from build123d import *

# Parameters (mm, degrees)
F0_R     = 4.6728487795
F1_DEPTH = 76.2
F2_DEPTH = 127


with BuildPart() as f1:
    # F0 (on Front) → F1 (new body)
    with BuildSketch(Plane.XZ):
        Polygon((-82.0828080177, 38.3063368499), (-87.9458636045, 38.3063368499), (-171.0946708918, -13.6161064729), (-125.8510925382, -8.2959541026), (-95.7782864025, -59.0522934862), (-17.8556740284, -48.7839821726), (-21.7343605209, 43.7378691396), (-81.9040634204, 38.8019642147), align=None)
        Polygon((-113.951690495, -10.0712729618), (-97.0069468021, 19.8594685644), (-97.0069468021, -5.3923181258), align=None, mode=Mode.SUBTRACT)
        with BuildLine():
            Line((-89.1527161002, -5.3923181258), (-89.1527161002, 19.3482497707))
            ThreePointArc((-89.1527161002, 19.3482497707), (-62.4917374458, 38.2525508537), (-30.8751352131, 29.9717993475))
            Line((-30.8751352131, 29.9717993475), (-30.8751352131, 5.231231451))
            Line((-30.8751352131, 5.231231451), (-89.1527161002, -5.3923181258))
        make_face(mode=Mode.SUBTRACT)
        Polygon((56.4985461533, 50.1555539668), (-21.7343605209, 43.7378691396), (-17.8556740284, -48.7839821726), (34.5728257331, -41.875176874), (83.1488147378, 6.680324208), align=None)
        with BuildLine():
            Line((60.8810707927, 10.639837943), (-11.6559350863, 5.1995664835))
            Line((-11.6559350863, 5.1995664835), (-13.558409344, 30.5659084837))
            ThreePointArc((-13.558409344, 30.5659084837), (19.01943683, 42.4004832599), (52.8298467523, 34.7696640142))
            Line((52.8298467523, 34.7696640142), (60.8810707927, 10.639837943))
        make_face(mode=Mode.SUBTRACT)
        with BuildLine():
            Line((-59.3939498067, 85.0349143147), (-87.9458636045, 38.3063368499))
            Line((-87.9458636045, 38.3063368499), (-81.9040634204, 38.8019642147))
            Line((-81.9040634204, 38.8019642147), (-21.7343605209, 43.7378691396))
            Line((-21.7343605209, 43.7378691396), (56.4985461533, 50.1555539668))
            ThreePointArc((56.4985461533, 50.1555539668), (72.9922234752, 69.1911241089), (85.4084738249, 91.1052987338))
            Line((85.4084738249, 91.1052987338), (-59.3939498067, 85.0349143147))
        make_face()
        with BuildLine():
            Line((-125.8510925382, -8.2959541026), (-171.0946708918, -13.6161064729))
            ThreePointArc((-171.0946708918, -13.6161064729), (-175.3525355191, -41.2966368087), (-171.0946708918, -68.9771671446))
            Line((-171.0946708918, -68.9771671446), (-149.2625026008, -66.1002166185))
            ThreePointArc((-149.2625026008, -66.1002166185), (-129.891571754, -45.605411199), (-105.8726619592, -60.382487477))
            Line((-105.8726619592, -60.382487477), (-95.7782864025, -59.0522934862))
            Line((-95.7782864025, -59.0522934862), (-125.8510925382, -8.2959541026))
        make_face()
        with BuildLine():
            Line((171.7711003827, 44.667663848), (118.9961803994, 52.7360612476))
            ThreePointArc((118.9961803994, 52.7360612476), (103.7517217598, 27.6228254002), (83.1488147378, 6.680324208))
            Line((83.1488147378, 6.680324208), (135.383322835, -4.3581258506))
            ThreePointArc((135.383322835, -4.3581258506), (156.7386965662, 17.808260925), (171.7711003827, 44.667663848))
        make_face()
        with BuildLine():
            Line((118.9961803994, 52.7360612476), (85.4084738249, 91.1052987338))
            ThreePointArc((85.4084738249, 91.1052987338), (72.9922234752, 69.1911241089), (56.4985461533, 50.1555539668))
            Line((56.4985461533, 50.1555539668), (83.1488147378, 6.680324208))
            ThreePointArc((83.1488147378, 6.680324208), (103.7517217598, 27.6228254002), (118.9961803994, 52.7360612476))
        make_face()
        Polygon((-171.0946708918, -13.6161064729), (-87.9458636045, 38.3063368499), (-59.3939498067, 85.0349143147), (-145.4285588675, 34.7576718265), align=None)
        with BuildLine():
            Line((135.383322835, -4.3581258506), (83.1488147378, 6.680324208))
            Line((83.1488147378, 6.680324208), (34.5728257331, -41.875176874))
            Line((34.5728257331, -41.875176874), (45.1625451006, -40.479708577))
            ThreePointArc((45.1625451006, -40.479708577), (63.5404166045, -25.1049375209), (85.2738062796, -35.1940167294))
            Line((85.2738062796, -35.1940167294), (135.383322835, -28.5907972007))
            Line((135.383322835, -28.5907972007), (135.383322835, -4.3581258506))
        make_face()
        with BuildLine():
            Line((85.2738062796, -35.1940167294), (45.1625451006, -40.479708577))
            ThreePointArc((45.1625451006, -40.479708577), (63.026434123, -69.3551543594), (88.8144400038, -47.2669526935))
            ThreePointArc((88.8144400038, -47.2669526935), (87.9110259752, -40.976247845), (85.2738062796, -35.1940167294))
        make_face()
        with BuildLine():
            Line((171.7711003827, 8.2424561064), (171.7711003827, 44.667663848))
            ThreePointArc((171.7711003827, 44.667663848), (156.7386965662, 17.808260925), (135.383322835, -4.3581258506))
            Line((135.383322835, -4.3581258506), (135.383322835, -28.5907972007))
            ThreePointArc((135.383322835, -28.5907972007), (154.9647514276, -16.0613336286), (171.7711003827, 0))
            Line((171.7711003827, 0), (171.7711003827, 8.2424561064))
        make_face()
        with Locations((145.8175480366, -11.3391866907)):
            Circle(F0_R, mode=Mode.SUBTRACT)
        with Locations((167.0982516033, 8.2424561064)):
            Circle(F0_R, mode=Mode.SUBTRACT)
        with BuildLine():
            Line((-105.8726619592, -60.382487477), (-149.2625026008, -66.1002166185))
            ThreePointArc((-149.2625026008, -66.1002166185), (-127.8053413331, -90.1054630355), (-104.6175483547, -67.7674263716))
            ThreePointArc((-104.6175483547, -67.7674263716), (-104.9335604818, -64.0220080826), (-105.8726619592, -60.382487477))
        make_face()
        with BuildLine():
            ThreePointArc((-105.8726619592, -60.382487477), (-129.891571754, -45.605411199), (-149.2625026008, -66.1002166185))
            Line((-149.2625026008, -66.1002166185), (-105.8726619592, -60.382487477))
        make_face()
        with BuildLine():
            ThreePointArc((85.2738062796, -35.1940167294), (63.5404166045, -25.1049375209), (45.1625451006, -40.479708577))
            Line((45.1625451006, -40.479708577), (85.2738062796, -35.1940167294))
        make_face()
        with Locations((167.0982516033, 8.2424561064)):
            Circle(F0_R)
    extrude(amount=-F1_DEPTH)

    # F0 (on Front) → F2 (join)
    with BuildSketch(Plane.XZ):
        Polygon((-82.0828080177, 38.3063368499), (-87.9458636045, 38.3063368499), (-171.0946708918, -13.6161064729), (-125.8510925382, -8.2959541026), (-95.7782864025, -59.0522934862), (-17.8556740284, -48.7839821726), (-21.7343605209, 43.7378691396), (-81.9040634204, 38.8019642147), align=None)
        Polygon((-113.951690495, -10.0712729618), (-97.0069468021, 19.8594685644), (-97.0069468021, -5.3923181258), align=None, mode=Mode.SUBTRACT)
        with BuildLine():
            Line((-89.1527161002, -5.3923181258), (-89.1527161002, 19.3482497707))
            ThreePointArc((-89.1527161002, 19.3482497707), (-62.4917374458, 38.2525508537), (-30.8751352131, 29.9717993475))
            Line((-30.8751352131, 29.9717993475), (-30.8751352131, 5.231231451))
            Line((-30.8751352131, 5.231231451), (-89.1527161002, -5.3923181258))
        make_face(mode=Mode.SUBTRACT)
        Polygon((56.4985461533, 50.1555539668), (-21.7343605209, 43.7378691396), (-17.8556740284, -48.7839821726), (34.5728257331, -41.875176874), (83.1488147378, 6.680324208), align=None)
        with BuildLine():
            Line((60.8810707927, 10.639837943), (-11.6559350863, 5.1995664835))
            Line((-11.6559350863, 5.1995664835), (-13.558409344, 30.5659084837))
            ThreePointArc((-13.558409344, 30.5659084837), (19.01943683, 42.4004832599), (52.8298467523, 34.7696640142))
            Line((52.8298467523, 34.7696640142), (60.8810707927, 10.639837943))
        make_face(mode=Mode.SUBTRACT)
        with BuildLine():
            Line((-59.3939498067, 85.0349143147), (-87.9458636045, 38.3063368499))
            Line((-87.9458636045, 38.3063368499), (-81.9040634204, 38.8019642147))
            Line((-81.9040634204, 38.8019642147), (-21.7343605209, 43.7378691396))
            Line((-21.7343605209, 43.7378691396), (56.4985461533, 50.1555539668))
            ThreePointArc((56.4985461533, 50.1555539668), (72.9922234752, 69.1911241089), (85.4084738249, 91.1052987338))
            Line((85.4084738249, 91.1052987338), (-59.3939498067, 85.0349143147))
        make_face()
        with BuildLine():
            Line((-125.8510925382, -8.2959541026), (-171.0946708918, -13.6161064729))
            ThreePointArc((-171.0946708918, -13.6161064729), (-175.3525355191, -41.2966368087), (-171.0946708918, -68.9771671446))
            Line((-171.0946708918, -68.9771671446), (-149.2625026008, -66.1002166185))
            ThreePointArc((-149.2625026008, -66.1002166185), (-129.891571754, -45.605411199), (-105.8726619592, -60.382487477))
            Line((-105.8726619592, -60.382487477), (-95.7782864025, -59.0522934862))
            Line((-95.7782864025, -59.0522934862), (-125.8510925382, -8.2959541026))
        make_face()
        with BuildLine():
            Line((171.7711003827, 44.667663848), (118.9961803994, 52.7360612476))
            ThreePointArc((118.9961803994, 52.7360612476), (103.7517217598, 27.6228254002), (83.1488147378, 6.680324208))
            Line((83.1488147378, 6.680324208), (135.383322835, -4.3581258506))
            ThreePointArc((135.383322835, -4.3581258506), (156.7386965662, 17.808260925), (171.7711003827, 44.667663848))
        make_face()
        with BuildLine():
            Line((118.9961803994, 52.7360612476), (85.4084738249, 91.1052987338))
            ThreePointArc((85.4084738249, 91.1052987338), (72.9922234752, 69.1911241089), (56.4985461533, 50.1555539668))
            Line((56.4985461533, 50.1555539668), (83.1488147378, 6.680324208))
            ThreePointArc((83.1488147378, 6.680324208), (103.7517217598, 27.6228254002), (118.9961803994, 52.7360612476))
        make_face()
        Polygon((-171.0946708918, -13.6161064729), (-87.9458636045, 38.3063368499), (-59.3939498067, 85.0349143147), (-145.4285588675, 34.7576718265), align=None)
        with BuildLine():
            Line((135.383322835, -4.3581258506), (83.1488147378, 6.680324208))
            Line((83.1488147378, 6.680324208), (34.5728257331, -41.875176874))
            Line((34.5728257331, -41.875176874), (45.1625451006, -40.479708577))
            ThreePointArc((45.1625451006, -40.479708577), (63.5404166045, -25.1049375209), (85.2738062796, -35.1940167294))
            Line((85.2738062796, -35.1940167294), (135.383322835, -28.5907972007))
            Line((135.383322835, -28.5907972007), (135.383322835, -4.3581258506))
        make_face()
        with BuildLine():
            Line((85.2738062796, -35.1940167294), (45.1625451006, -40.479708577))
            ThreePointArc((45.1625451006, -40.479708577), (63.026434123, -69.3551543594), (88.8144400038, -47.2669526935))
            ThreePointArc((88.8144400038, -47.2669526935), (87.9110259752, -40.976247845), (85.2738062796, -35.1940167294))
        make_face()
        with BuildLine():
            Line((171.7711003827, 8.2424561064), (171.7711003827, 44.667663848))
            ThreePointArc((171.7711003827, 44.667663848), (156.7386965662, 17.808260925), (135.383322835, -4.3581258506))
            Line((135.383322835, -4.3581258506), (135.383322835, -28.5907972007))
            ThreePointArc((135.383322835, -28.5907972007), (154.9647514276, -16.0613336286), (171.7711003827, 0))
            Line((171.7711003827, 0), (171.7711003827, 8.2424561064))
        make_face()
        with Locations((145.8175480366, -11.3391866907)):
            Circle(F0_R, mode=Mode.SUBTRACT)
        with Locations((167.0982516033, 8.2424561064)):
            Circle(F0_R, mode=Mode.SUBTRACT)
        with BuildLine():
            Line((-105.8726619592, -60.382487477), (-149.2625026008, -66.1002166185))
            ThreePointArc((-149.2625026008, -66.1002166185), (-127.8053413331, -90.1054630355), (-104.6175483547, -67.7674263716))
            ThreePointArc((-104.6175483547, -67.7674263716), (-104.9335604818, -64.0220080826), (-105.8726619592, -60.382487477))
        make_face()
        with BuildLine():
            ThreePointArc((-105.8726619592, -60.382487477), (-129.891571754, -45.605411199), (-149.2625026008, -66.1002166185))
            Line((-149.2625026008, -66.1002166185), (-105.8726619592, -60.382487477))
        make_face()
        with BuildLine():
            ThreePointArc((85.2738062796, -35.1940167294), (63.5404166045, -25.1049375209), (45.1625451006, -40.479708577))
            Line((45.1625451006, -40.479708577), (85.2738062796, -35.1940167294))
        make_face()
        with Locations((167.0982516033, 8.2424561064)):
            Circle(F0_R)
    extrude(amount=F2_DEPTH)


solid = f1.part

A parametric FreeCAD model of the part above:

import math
import FreeCAD as App
import Part
import Sketcher
from FreeCAD import Vector
Q = App.Units.Quantity

doc = App.newDocument("Part")
body = doc.addObject("PartDesign::Body", "Body")

# Sketch on XZ plane
sketch1 = doc.addObject("Sketcher::SketchObject", "Sketch")
body.addObject(sketch1)
sketch1.AttachmentSupport = (doc.XZ_Plane, [""])
sketch1.MapMode = "FlatFace"
sketch1.addGeometry([
    Part.LineSegment(Vector(171.8, 0, 0), Vector(171.8, 44.7, 0)),  # 0
    Part.LineSegment(Vector(171.8, 44.7, 0), Vector(119, 52.7, 0)),  # 1
    Part.LineSegment(Vector(119, 52.7, 0), Vector(85.4, 91.1, 0)),  # 2
    Part.LineSegment(Vector(85.4, 91.1, 0), Vector(-59.4, 85, 0)),  # 3
    Part.LineSegment(Vector(-59.4, 85, 0), Vector(-145.4, 34.8, 0)),  # 4
    Part.LineSegment(Vector(-145.4, 34.8, 0), Vector(-171.1, -13.6, 0)),  # 5
    Part.ArcOfCircle(Part.Circle(Vector(-83.2, -41.3, 0), Vector(0, 0, 1), 92.1), math.radians(163), math.radians(197)),  # 6
    Part.LineSegment(Vector(-171.1, -69, 0), Vector(-149.3, -66.1, 0)),  # 7
    Part.ArcOfCircle(Part.Circle(Vector(-127, -67.8, 0), Vector(0, 0, 1), 22.4), math.radians(176), math.radians(360)),  # 8
    Part.ArcOfCircle(Part.Circle(Vector(-127, -67.8, 0), Vector(0, 0, 1), 22.4), math.radians(0), math.radians(19.29)),  # 9
    Part.LineSegment(Vector(-105.9, -60.4, 0), Vector(-95.8, -59.1, 0)),  # 10
    Part.LineSegment(Vector(-95.8, -59.1, 0), Vector(-17.9, -48.8, 0)),  # 11
    Part.LineSegment(Vector(-17.9, -48.8, 0), Vector(45.2, -40.5, 0)),  # 12
    Part.ArcOfCircle(Part.Circle(Vector(66.5, -47.3, 0), Vector(0, 0, 1), 22.4), math.radians(162), math.radians(360)),  # 13
    Part.ArcOfCircle(Part.Circle(Vector(66.5, -47.3, 0), Vector(0, 0, 1), 22.4), math.radians(0), math.radians(33)),  # 14
    Part.LineSegment(Vector(85.3, -35.2, 0), Vector(135.4, -28.6, 0)),  # 15
    Part.ArcOfCircle(Part.Circle(Vector(80.6, 78.5, 0), Vector(0, 0, 1), 120.3), math.radians(-63), math.radians(-41)),  # 16
    Part.LineSegment(Vector(-97, -5.4, 0), Vector(-114, -10.1, 0)),  # 17
    Part.LineSegment(Vector(-114, -10.1, 0), Vector(-97, 19.9, 0)),  # 18
    Part.LineSegment(Vector(-97, 19.9, 0), Vector(-97, -5.4, 0)),  # 19
    Part.Circle(Vector(145.8, -11.3, 0), Vector(0, 0, 1), 4.7),  # 20
    Part.LineSegment(Vector(-30.9, 5.2, 0), Vector(-89.2, -5.4, 0)),  # 21
    Part.LineSegment(Vector(-89.2, -5.4, 0), Vector(-89.2, 19.3, 0)),  # 22
    Part.ArcOfCircle(Part.Circle(Vector(-55.6, 0.2, 0), Vector(0, 0, 1), 38.7), math.radians(50), math.radians(150)),  # 23
    Part.LineSegment(Vector(-30.9, 30, 0), Vector(-30.9, 5.2, 0)),  # 24
    Part.LineSegment(Vector(52.8, 34.8, 0), Vector(60.9, 10.6, 0)),  # 25
    Part.LineSegment(Vector(60.9, 10.6, 0), Vector(-11.7, 5.2, 0)),  # 26
    Part.LineSegment(Vector(-11.7, 5.2, 0), Vector(-13.6, 30.6, 0)),  # 27
    Part.ArcOfCircle(Part.Circle(Vector(22.9, -19.1, 0), Vector(0, 0, 1), 61.6), math.radians(61), math.radians(126)),  # 28
    Part.LineSegment(Vector(-82.1, 38.3, 0), Vector(-87.9, 38.3, 0)),  # 29
    Part.LineSegment(Vector(-87.9, 38.3, 0), Vector(-81.9, 38.8, 0)),  # 30
    Part.LineSegment(Vector(-81.9, 38.8, 0), Vector(-82.1, 38.3, 0)),  # 31
], False)
sketch1.addConstraint([
    Sketcher.Constraint("Coincident", 0, 2, 1, 1),
    Sketcher.Constraint("Coincident", 1, 2, 2, 1),
    Sketcher.Constraint("Coincident", 2, 2, 3, 1),
    Sketcher.Constraint("Coincident", 3, 2, 4, 1),
    Sketcher.Constraint("Coincident", 4, 2, 5, 1),
    Sketcher.Constraint("Coincident", 5, 2, 6, 1),
    Sketcher.Constraint("Coincident", 6, 2, 7, 1),
    Sketcher.Constraint("Coincident", 7, 2, 8, 1),
    Sketcher.Constraint("Tangent", 8, 2, 9, 1),
    Sketcher.Constraint("Coincident", 9, 2, 10, 1),
    Sketcher.Constraint("Coincident", 10, 2, 11, 1),
    Sketcher.Constraint("Coincident", 11, 2, 12, 1),
    Sketcher.Constraint("Coincident", 12, 2, 13, 1),
    Sketcher.Constraint("Tangent", 13, 2, 14, 1),
    Sketcher.Constraint("Coincident", 14, 2, 15, 1),
    Sketcher.Constraint("Coincident", 15, 2, 16, 1),
    Sketcher.Constraint("Coincident", 16, 2, 0, 1),
    Sketcher.Constraint("Coincident", 17, 2, 18, 1),
    Sketcher.Constraint("Coincident", 18, 2, 19, 1),
    Sketcher.Constraint("Coincident", 19, 2, 17, 1),
    Sketcher.Constraint("Coincident", 21, 2, 22, 1),
    Sketcher.Constraint("Coincident", 22, 2, 23, 2),
    Sketcher.Constraint("Coincident", 23, 1, 24, 1),
    Sketcher.Constraint("Coincident", 24, 2, 21, 1),
    Sketcher.Constraint("Coincident", 25, 2, 26, 1),
    Sketcher.Constraint("Coincident", 26, 2, 27, 1),
    Sketcher.Constraint("Coincident", 27, 2, 28, 2),
    Sketcher.Constraint("Coincident", 28, 1, 25, 1),
    Sketcher.Constraint("Coincident", 29, 2, 30, 1),
    Sketcher.Constraint("Coincident", 30, 2, 31, 1),
    Sketcher.Constraint("Coincident", 31, 2, 29, 1),
    Sketcher.Constraint("Vertical", 0),
    Sketcher.Constraint("Vertical", 19),
    Sketcher.Constraint("Vertical", 22),
    Sketcher.Constraint("Vertical", 24),
    Sketcher.Constraint("Horizontal", 29),
    Sketcher.Constraint("Equal", 8, 9),
    Sketcher.Constraint("Equal", 9, 13),
    Sketcher.Constraint("Equal", 13, 14),
    Sketcher.Constraint("PointOnObject", 16, 2, -1),
    Sketcher.Constraint("Parallel", 7, 10),
    Sketcher.Constraint("Parallel", 10, 11),
    Sketcher.Constraint("Parallel", 11, 12),
    Sketcher.Constraint("Parallel", 12, 15),
    Sketcher.Constraint("Perpendicular", 26, 27),
    Sketcher.Constraint("Horizontal", 9, 3, 8, 2),
    Sketcher.Constraint("Horizontal", 14, 3, 13, 2),
    Sketcher.Constraint("Horizontal", 19, 2, 21, 2),
    Sketcher.Constraint("Vertical", 5, 2, 6, 2),
    Sketcher.Constraint("Equal", 22, 24),
    Sketcher.Constraint("Equal", 25, 27),
    Sketcher.Constraint("Radius", 6, Q("92.104992 mm")),
    Sketcher.Constraint("Radius", 16, Q("120.315788 mm")),
    Sketcher.Constraint("Diameter", 20, Q("9.345698 mm")),
    Sketcher.Constraint("Radius", 8, Q("22.353607 mm")),
    Sketcher.Constraint("Radius", 23, Q("38.655903 mm")),
    Sketcher.Constraint("Radius", 28, Q("61.595053 mm")),
    Sketcher.Constraint("DistanceY", 1, 2, 2, 2, Q("1.5105999 in")),
    Sketcher.Constraint("DistanceX", -1, 1, 0, 2, Q("171.7711 mm")),
    Sketcher.Constraint("DistanceY", -1, 1, 2, 2, Q("91.105299 mm")),
    Sketcher.Constraint("DistanceY", -1, 1, 23, 1, Q("29.971799 mm")),
    Sketcher.Constraint("DistanceY", 13, 3, 23, 3, Q("47.490301 mm")),
    Sketcher.Constraint("DistanceY", 9, 3, 4, 2, Q("102.525098 mm")),
    Sketcher.Constraint("DistanceY", 23, 3, 22, 2, Q("19.124902 mm")),
    Sketcher.Constraint("DistanceX", 24, 2, 26, 2, Q("19.2192 mm")),
    Sketcher.Constraint("DistanceX", 23, 3, 27, 2, Q("42.0009 mm")),
    Sketcher.Constraint("DistanceX", 29, 2, 30, 2, Q("6.0418 mm")),
    Sketcher.Constraint("Distance", 1, Q("53.388119 mm")),
    Sketcher.Constraint("Distance", 3, Q("144.929609 mm")),
    Sketcher.Constraint("Distance", 7, Q("22.020909 mm")),
    Sketcher.Constraint("Distance", 17, Q("17.578878 mm")),
    Sketcher.Constraint("Distance", 26, Q("72.74073 mm")),
    Sketcher.Constraint("DistanceX", 29, 2, 29, 1, Q("5.863056 mm")),
    Sketcher.Constraint("DistanceY", 0, 1, 0, 2, Q("44.667664 mm")),
    Sketcher.Constraint("DistanceY", 19, 2, 19, 1, Q("25.251787 mm")),
    Sketcher.Constraint("DistanceY", 22, 1, 22, 2, Q("24.740568 mm")),
    Sketcher.Constraint("DistanceX", -1, 1, 16, 3, Q("80.630421 mm")),
    Sketcher.Constraint("DistanceX", -1, 1, 20, 3, Q("145.817548 mm")),
    Sketcher.Constraint("DistanceX", 23, 3, -1, 1, Q("55.55931 mm")),
    Sketcher.Constraint("DistanceX", 3, 2, -1, 1, Q("59.39395 mm")),
    Sketcher.Constraint("DistanceX", 4, 2, -1, 1, Q("145.428559 mm")),
    Sketcher.Constraint("DistanceY", -1, 1, 4, 2, Q("34.757672 mm")),
    Sketcher.Constraint("DistanceX", 5, 2, -1, 1, Q("171.094671 mm")),
    Sketcher.Constraint("DistanceX", 8, 2, -1, 1, Q("104.617548 mm")),
    Sketcher.Constraint("DistanceX", 9, 2, -1, 1, Q("105.872662 mm")),
    Sketcher.Constraint("DistanceY", 12, 2, -1, 1, Q("40.479709 mm")),
    Sketcher.Constraint("DistanceX", -1, 1, 13, 2, Q("88.81444 mm")),
    Sketcher.Constraint("DistanceX", 17, 2, -1, 1, Q("113.95169 mm")),
    Sketcher.Constraint("DistanceY", -1, 1, 18, 2, Q("19.859469 mm")),
    Sketcher.Constraint("DistanceX", -1, 1, 25, 2, Q("60.881071 mm")),
    Sketcher.Constraint("DistanceY", -1, 1, 27, 2, Q("30.565908 mm")),
    Sketcher.Constraint("DistanceX", 31, 2, -1, 1, Q("82.082808 mm")),
    Sketcher.Constraint("DistanceX", 8, 3, 6, 3, Q("43.723611 mm")),
    Sketcher.Constraint("DistanceY", 6, 3, 20, 3, Q("29.95745 mm")),
    Sketcher.Constraint("DistanceX", 6, 3, 28, 3, Q("106.159431 mm")),
    Sketcher.Constraint("DistanceY", 6, 3, 3, 2, Q("126.331551 mm")),
    Sketcher.Constraint("DistanceX", 8, 2, 10, 2, Q("8.839262 mm")),
    Sketcher.Constraint("DistanceX", 11, 2, 28, 3, Q("40.767561 mm")),
    Sketcher.Constraint("DistanceX", 12, 2, 14, 2, Q("40.111261 mm")),
    Sketcher.Constraint("DistanceY", 10, 2, 17, 2, Q("48.981021 mm")),
    Sketcher.Constraint("DistanceY", 18, 2, 29, 2, Q("18.446868 mm")),
    Sketcher.Constraint("Distance", 30, Q("6.062095 mm")),
])
pad1 = doc.addObject("PartDesign::Pad", "Pad")
body.addObject(pad1)
pad1.Profile = sketch1
pad1.Length = Q("3 in")
pad1.Reversed = True

# Sketch on XZ plane
sketch2 = doc.addObject("Sketcher::SketchObject", "Sketch001")
body.addObject(sketch2)
sketch2.AttachmentSupport = (doc.XZ_Plane, [""])
sketch2.MapMode = "FlatFace"
sketch2.addGeometry([
    Part.LineSegment(Vector(171.8, 0, 0), Vector(171.8, 44.7, 0)),  # 0
    Part.LineSegment(Vector(171.8, 44.7, 0), Vector(119, 52.7, 0)),  # 1
    Part.LineSegment(Vector(119, 52.7, 0), Vector(85.4, 91.1, 0)),  # 2
    Part.LineSegment(Vector(85.4, 91.1, 0), Vector(-59.4, 85, 0)),  # 3
    Part.LineSegment(Vector(-59.4, 85, 0), Vector(-145.4, 34.8, 0)),  # 4
    Part.LineSegment(Vector(-145.4, 34.8, 0), Vector(-171.1, -13.6, 0)),  # 5
    Part.ArcOfCircle(Part.Circle(Vector(-83.2, -41.3, 0), Vector(0, 0, 1), 92.1), math.radians(163), math.radians(197)),  # 6
    Part.LineSegment(Vector(-171.1, -69, 0), Vector(-149.3, -66.1, 0)),  # 7
    Part.ArcOfCircle(Part.Circle(Vector(-127, -67.8, 0), Vector(0, 0, 1), 22.4), math.radians(176), math.radians(360)),  # 8
    Part.ArcOfCircle(Part.Circle(Vector(-127, -67.8, 0), Vector(0, 0, 1), 22.4), math.radians(0), math.radians(19.29)),  # 9
    Part.LineSegment(Vector(-105.9, -60.4, 0), Vector(-95.8, -59.1, 0)),  # 10
    Part.LineSegment(Vector(-95.8, -59.1, 0), Vector(-17.9, -48.8, 0)),  # 11
    Part.LineSegment(Vector(-17.9, -48.8, 0), Vector(45.2, -40.5, 0)),  # 12
    Part.ArcOfCircle(Part.Circle(Vector(66.5, -47.3, 0), Vector(0, 0, 1), 22.4), math.radians(162), math.radians(360)),  # 13
    Part.ArcOfCircle(Part.Circle(Vector(66.5, -47.3, 0), Vector(0, 0, 1), 22.4), math.radians(0), math.radians(33)),  # 14
    Part.LineSegment(Vector(85.3, -35.2, 0), Vector(135.4, -28.6, 0)),  # 15
    Part.ArcOfCircle(Part.Circle(Vector(80.6, 78.5, 0), Vector(0, 0, 1), 120.3), math.radians(-63), math.radians(-41)),  # 16
    Part.LineSegment(Vector(-97, -5.4, 0), Vector(-114, -10.1, 0)),  # 17
    Part.LineSegment(Vector(-114, -10.1, 0), Vector(-97, 19.9, 0)),  # 18
    Part.LineSegment(Vector(-97, 19.9, 0), Vector(-97, -5.4, 0)),  # 19
    Part.Circle(Vector(145.8, -11.3, 0), Vector(0, 0, 1), 4.7),  # 20
    Part.LineSegment(Vector(-30.9, 5.2, 0), Vector(-89.2, -5.4, 0)),  # 21
    Part.LineSegment(Vector(-89.2, -5.4, 0), Vector(-89.2, 19.3, 0)),  # 22
    Part.ArcOfCircle(Part.Circle(Vector(-55.6, 0.2, 0), Vector(0, 0, 1), 38.7), math.radians(50), math.radians(150)),  # 23
    Part.LineSegment(Vector(-30.9, 30, 0), Vector(-30.9, 5.2, 0)),  # 24
    Part.LineSegment(Vector(52.8, 34.8, 0), Vector(60.9, 10.6, 0)),  # 25
    Part.LineSegment(Vector(60.9, 10.6, 0), Vector(-11.7, 5.2, 0)),  # 26
    Part.LineSegment(Vector(-11.7, 5.2, 0), Vector(-13.6, 30.6, 0)),  # 27
    Part.ArcOfCircle(Part.Circle(Vector(22.9, -19.1, 0), Vector(0, 0, 1), 61.6), math.radians(61), math.radians(126)),  # 28
    Part.LineSegment(Vector(-82.1, 38.3, 0), Vector(-87.9, 38.3, 0)),  # 29
    Part.LineSegment(Vector(-87.9, 38.3, 0), Vector(-81.9, 38.8, 0)),  # 30
    Part.LineSegment(Vector(-81.9, 38.8, 0), Vector(-82.1, 38.3, 0)),  # 31
], False)
sketch2.addConstraint([
    Sketcher.Constraint("Coincident", 0, 2, 1, 1),
    Sketcher.Constraint("Coincident", 1, 2, 2, 1),
    Sketcher.Constraint("Coincident", 2, 2, 3, 1),
    Sketcher.Constraint("Coincident", 3, 2, 4, 1),
    Sketcher.Constraint("Coincident", 4, 2, 5, 1),
    Sketcher.Constraint("Coincident", 5, 2, 6, 1),
    Sketcher.Constraint("Coincident", 6, 2, 7, 1),
    Sketcher.Constraint("Coincident", 7, 2, 8, 1),
    Sketcher.Constraint("Tangent", 8, 2, 9, 1),
    Sketcher.Constraint("Coincident", 9, 2, 10, 1),
    Sketcher.Constraint("Coincident", 10, 2, 11, 1),
    Sketcher.Constraint("Coincident", 11, 2, 12, 1),
    Sketcher.Constraint("Coincident", 12, 2, 13, 1),
    Sketcher.Constraint("Tangent", 13, 2, 14, 1),
    Sketcher.Constraint("Coincident", 14, 2, 15, 1),
    Sketcher.Constraint("Coincident", 15, 2, 16, 1),
    Sketcher.Constraint("Coincident", 16, 2, 0, 1),
    Sketcher.Constraint("Coincident", 17, 2, 18, 1),
    Sketcher.Constraint("Coincident", 18, 2, 19, 1),
    Sketcher.Constraint("Coincident", 19, 2, 17, 1),
    Sketcher.Constraint("Coincident", 21, 2, 22, 1),
    Sketcher.Constraint("Coincident", 22, 2, 23, 2),
    Sketcher.Constraint("Coincident", 23, 1, 24, 1),
    Sketcher.Constraint("Coincident", 24, 2, 21, 1),
    Sketcher.Constraint("Coincident", 25, 2, 26, 1),
    Sketcher.Constraint("Coincident", 26, 2, 27, 1),
    Sketcher.Constraint("Coincident", 27, 2, 28, 2),
    Sketcher.Constraint("Coincident", 28, 1, 25, 1),
    Sketcher.Constraint("Coincident", 29, 2, 30, 1),
    Sketcher.Constraint("Coincident", 30, 2, 31, 1),
    Sketcher.Constraint("Coincident", 31, 2, 29, 1),
    Sketcher.Constraint("Vertical", 0),
    Sketcher.Constraint("Vertical", 19),
    Sketcher.Constraint("Vertical", 22),
    Sketcher.Constraint("Vertical", 24),
    Sketcher.Constraint("Horizontal", 29),
    Sketcher.Constraint("Equal", 8, 9),
    Sketcher.Constraint("Equal", 9, 13),
    Sketcher.Constraint("Equal", 13, 14),
    Sketcher.Constraint("PointOnObject", 16, 2, -1),
    Sketcher.Constraint("Parallel", 7, 10),
    Sketcher.Constraint("Parallel", 10, 11),
    Sketcher.Constraint("Parallel", 11, 12),
    Sketcher.Constraint("Parallel", 12, 15),
    Sketcher.Constraint("Perpendicular", 26, 27),
    Sketcher.Constraint("Horizontal", 9, 3, 8, 2),
    Sketcher.Constraint("Horizontal", 14, 3, 13, 2),
    Sketcher.Constraint("Horizontal", 19, 2, 21, 2),
    Sketcher.Constraint("Vertical", 5, 2, 6, 2),
    Sketcher.Constraint("Equal", 22, 24),
    Sketcher.Constraint("Equal", 25, 27),
    Sketcher.Constraint("Radius", 6, Q("92.104992 mm")),
    Sketcher.Constraint("Radius", 16, Q("120.315788 mm")),
    Sketcher.Constraint("Diameter", 20, Q("9.345698 mm")),
    Sketcher.Constraint("Radius", 8, Q("22.353607 mm")),
    Sketcher.Constraint("Radius", 23, Q("38.655903 mm")),
    Sketcher.Constraint("Radius", 28, Q("61.595053 mm")),
    Sketcher.Constraint("DistanceY", 1, 2, 2, 2, Q("1.5105999 in")),
    Sketcher.Constraint("DistanceX", -1, 1, 0, 2, Q("171.7711 mm")),
    Sketcher.Constraint("DistanceY", -1, 1, 2, 2, Q("91.105299 mm")),
    Sketcher.Constraint("DistanceY", -1, 1, 23, 1, Q("29.971799 mm")),
    Sketcher.Constraint("DistanceY", 13, 3, 23, 3, Q("47.490301 mm")),
    Sketcher.Constraint("DistanceY", 9, 3, 4, 2, Q("102.525098 mm")),
    Sketcher.Constraint("DistanceY", 23, 3, 22, 2, Q("19.124902 mm")),
    Sketcher.Constraint("DistanceX", 24, 2, 26, 2, Q("19.2192 mm")),
    Sketcher.Constraint("DistanceX", 23, 3, 27, 2, Q("42.0009 mm")),
    Sketcher.Constraint("DistanceX", 29, 2, 30, 2, Q("6.0418 mm")),
    Sketcher.Constraint("Distance", 1, Q("53.388119 mm")),
    Sketcher.Constraint("Distance", 3, Q("144.929609 mm")),
    Sketcher.Constraint("Distance", 7, Q("22.020909 mm")),
    Sketcher.Constraint("Distance", 17, Q("17.578878 mm")),
    Sketcher.Constraint("Distance", 26, Q("72.74073 mm")),
    Sketcher.Constraint("DistanceX", 29, 2, 29, 1, Q("5.863056 mm")),
    Sketcher.Constraint("DistanceY", 0, 1, 0, 2, Q("44.667664 mm")),
    Sketcher.Constraint("DistanceY", 19, 2, 19, 1, Q("25.251787 mm")),
    Sketcher.Constraint("DistanceY", 22, 1, 22, 2, Q("24.740568 mm")),
    Sketcher.Constraint("DistanceX", -1, 1, 16, 3, Q("80.630421 mm")),
    Sketcher.Constraint("DistanceX", -1, 1, 20, 3, Q("145.817548 mm")),
    Sketcher.Constraint("DistanceX", 23, 3, -1, 1, Q("55.55931 mm")),
    Sketcher.Constraint("DistanceX", 3, 2, -1, 1, Q("59.39395 mm")),
    Sketcher.Constraint("DistanceX", 4, 2, -1, 1, Q("145.428559 mm")),
    Sketcher.Constraint("DistanceY", -1, 1, 4, 2, Q("34.757672 mm")),
    Sketcher.Constraint("DistanceX", 5, 2, -1, 1, Q("171.094671 mm")),
    Sketcher.Constraint("DistanceX", 8, 2, -1, 1, Q("104.617548 mm")),
    Sketcher.Constraint("DistanceX", 9, 2, -1, 1, Q("105.872662 mm")),
    Sketcher.Constraint("DistanceY", 12, 2, -1, 1, Q("40.479709 mm")),
    Sketcher.Constraint("DistanceX", -1, 1, 13, 2, Q("88.81444 mm")),
    Sketcher.Constraint("DistanceX", 17, 2, -1, 1, Q("113.95169 mm")),
    Sketcher.Constraint("DistanceY", -1, 1, 18, 2, Q("19.859469 mm")),
    Sketcher.Constraint("DistanceX", -1, 1, 25, 2, Q("60.881071 mm")),
    Sketcher.Constraint("DistanceY", -1, 1, 27, 2, Q("30.565908 mm")),
    Sketcher.Constraint("DistanceX", 31, 2, -1, 1, Q("82.082808 mm")),
    Sketcher.Constraint("DistanceX", 8, 3, 6, 3, Q("43.723611 mm")),
    Sketcher.Constraint("DistanceY", 6, 3, 20, 3, Q("29.95745 mm")),
    Sketcher.Constraint("DistanceX", 6, 3, 28, 3, Q("106.159431 mm")),
    Sketcher.Constraint("DistanceY", 6, 3, 3, 2, Q("126.331551 mm")),
    Sketcher.Constraint("DistanceX", 8, 2, 10, 2, Q("8.839262 mm")),
    Sketcher.Constraint("DistanceX", 11, 2, 28, 3, Q("40.767561 mm")),
    Sketcher.Constraint("DistanceX", 12, 2, 14, 2, Q("40.111261 mm")),
    Sketcher.Constraint("DistanceY", 10, 2, 17, 2, Q("48.981021 mm")),
    Sketcher.Constraint("DistanceY", 18, 2, 29, 2, Q("18.446868 mm")),
    Sketcher.Constraint("Distance", 30, Q("6.062095 mm")),
])
pad2 = doc.addObject("PartDesign::Pad", "Pad001")
body.addObject(pad2)
pad2.Profile = sketch2
pad2.Length = Q("5 in")

doc.recompute()
